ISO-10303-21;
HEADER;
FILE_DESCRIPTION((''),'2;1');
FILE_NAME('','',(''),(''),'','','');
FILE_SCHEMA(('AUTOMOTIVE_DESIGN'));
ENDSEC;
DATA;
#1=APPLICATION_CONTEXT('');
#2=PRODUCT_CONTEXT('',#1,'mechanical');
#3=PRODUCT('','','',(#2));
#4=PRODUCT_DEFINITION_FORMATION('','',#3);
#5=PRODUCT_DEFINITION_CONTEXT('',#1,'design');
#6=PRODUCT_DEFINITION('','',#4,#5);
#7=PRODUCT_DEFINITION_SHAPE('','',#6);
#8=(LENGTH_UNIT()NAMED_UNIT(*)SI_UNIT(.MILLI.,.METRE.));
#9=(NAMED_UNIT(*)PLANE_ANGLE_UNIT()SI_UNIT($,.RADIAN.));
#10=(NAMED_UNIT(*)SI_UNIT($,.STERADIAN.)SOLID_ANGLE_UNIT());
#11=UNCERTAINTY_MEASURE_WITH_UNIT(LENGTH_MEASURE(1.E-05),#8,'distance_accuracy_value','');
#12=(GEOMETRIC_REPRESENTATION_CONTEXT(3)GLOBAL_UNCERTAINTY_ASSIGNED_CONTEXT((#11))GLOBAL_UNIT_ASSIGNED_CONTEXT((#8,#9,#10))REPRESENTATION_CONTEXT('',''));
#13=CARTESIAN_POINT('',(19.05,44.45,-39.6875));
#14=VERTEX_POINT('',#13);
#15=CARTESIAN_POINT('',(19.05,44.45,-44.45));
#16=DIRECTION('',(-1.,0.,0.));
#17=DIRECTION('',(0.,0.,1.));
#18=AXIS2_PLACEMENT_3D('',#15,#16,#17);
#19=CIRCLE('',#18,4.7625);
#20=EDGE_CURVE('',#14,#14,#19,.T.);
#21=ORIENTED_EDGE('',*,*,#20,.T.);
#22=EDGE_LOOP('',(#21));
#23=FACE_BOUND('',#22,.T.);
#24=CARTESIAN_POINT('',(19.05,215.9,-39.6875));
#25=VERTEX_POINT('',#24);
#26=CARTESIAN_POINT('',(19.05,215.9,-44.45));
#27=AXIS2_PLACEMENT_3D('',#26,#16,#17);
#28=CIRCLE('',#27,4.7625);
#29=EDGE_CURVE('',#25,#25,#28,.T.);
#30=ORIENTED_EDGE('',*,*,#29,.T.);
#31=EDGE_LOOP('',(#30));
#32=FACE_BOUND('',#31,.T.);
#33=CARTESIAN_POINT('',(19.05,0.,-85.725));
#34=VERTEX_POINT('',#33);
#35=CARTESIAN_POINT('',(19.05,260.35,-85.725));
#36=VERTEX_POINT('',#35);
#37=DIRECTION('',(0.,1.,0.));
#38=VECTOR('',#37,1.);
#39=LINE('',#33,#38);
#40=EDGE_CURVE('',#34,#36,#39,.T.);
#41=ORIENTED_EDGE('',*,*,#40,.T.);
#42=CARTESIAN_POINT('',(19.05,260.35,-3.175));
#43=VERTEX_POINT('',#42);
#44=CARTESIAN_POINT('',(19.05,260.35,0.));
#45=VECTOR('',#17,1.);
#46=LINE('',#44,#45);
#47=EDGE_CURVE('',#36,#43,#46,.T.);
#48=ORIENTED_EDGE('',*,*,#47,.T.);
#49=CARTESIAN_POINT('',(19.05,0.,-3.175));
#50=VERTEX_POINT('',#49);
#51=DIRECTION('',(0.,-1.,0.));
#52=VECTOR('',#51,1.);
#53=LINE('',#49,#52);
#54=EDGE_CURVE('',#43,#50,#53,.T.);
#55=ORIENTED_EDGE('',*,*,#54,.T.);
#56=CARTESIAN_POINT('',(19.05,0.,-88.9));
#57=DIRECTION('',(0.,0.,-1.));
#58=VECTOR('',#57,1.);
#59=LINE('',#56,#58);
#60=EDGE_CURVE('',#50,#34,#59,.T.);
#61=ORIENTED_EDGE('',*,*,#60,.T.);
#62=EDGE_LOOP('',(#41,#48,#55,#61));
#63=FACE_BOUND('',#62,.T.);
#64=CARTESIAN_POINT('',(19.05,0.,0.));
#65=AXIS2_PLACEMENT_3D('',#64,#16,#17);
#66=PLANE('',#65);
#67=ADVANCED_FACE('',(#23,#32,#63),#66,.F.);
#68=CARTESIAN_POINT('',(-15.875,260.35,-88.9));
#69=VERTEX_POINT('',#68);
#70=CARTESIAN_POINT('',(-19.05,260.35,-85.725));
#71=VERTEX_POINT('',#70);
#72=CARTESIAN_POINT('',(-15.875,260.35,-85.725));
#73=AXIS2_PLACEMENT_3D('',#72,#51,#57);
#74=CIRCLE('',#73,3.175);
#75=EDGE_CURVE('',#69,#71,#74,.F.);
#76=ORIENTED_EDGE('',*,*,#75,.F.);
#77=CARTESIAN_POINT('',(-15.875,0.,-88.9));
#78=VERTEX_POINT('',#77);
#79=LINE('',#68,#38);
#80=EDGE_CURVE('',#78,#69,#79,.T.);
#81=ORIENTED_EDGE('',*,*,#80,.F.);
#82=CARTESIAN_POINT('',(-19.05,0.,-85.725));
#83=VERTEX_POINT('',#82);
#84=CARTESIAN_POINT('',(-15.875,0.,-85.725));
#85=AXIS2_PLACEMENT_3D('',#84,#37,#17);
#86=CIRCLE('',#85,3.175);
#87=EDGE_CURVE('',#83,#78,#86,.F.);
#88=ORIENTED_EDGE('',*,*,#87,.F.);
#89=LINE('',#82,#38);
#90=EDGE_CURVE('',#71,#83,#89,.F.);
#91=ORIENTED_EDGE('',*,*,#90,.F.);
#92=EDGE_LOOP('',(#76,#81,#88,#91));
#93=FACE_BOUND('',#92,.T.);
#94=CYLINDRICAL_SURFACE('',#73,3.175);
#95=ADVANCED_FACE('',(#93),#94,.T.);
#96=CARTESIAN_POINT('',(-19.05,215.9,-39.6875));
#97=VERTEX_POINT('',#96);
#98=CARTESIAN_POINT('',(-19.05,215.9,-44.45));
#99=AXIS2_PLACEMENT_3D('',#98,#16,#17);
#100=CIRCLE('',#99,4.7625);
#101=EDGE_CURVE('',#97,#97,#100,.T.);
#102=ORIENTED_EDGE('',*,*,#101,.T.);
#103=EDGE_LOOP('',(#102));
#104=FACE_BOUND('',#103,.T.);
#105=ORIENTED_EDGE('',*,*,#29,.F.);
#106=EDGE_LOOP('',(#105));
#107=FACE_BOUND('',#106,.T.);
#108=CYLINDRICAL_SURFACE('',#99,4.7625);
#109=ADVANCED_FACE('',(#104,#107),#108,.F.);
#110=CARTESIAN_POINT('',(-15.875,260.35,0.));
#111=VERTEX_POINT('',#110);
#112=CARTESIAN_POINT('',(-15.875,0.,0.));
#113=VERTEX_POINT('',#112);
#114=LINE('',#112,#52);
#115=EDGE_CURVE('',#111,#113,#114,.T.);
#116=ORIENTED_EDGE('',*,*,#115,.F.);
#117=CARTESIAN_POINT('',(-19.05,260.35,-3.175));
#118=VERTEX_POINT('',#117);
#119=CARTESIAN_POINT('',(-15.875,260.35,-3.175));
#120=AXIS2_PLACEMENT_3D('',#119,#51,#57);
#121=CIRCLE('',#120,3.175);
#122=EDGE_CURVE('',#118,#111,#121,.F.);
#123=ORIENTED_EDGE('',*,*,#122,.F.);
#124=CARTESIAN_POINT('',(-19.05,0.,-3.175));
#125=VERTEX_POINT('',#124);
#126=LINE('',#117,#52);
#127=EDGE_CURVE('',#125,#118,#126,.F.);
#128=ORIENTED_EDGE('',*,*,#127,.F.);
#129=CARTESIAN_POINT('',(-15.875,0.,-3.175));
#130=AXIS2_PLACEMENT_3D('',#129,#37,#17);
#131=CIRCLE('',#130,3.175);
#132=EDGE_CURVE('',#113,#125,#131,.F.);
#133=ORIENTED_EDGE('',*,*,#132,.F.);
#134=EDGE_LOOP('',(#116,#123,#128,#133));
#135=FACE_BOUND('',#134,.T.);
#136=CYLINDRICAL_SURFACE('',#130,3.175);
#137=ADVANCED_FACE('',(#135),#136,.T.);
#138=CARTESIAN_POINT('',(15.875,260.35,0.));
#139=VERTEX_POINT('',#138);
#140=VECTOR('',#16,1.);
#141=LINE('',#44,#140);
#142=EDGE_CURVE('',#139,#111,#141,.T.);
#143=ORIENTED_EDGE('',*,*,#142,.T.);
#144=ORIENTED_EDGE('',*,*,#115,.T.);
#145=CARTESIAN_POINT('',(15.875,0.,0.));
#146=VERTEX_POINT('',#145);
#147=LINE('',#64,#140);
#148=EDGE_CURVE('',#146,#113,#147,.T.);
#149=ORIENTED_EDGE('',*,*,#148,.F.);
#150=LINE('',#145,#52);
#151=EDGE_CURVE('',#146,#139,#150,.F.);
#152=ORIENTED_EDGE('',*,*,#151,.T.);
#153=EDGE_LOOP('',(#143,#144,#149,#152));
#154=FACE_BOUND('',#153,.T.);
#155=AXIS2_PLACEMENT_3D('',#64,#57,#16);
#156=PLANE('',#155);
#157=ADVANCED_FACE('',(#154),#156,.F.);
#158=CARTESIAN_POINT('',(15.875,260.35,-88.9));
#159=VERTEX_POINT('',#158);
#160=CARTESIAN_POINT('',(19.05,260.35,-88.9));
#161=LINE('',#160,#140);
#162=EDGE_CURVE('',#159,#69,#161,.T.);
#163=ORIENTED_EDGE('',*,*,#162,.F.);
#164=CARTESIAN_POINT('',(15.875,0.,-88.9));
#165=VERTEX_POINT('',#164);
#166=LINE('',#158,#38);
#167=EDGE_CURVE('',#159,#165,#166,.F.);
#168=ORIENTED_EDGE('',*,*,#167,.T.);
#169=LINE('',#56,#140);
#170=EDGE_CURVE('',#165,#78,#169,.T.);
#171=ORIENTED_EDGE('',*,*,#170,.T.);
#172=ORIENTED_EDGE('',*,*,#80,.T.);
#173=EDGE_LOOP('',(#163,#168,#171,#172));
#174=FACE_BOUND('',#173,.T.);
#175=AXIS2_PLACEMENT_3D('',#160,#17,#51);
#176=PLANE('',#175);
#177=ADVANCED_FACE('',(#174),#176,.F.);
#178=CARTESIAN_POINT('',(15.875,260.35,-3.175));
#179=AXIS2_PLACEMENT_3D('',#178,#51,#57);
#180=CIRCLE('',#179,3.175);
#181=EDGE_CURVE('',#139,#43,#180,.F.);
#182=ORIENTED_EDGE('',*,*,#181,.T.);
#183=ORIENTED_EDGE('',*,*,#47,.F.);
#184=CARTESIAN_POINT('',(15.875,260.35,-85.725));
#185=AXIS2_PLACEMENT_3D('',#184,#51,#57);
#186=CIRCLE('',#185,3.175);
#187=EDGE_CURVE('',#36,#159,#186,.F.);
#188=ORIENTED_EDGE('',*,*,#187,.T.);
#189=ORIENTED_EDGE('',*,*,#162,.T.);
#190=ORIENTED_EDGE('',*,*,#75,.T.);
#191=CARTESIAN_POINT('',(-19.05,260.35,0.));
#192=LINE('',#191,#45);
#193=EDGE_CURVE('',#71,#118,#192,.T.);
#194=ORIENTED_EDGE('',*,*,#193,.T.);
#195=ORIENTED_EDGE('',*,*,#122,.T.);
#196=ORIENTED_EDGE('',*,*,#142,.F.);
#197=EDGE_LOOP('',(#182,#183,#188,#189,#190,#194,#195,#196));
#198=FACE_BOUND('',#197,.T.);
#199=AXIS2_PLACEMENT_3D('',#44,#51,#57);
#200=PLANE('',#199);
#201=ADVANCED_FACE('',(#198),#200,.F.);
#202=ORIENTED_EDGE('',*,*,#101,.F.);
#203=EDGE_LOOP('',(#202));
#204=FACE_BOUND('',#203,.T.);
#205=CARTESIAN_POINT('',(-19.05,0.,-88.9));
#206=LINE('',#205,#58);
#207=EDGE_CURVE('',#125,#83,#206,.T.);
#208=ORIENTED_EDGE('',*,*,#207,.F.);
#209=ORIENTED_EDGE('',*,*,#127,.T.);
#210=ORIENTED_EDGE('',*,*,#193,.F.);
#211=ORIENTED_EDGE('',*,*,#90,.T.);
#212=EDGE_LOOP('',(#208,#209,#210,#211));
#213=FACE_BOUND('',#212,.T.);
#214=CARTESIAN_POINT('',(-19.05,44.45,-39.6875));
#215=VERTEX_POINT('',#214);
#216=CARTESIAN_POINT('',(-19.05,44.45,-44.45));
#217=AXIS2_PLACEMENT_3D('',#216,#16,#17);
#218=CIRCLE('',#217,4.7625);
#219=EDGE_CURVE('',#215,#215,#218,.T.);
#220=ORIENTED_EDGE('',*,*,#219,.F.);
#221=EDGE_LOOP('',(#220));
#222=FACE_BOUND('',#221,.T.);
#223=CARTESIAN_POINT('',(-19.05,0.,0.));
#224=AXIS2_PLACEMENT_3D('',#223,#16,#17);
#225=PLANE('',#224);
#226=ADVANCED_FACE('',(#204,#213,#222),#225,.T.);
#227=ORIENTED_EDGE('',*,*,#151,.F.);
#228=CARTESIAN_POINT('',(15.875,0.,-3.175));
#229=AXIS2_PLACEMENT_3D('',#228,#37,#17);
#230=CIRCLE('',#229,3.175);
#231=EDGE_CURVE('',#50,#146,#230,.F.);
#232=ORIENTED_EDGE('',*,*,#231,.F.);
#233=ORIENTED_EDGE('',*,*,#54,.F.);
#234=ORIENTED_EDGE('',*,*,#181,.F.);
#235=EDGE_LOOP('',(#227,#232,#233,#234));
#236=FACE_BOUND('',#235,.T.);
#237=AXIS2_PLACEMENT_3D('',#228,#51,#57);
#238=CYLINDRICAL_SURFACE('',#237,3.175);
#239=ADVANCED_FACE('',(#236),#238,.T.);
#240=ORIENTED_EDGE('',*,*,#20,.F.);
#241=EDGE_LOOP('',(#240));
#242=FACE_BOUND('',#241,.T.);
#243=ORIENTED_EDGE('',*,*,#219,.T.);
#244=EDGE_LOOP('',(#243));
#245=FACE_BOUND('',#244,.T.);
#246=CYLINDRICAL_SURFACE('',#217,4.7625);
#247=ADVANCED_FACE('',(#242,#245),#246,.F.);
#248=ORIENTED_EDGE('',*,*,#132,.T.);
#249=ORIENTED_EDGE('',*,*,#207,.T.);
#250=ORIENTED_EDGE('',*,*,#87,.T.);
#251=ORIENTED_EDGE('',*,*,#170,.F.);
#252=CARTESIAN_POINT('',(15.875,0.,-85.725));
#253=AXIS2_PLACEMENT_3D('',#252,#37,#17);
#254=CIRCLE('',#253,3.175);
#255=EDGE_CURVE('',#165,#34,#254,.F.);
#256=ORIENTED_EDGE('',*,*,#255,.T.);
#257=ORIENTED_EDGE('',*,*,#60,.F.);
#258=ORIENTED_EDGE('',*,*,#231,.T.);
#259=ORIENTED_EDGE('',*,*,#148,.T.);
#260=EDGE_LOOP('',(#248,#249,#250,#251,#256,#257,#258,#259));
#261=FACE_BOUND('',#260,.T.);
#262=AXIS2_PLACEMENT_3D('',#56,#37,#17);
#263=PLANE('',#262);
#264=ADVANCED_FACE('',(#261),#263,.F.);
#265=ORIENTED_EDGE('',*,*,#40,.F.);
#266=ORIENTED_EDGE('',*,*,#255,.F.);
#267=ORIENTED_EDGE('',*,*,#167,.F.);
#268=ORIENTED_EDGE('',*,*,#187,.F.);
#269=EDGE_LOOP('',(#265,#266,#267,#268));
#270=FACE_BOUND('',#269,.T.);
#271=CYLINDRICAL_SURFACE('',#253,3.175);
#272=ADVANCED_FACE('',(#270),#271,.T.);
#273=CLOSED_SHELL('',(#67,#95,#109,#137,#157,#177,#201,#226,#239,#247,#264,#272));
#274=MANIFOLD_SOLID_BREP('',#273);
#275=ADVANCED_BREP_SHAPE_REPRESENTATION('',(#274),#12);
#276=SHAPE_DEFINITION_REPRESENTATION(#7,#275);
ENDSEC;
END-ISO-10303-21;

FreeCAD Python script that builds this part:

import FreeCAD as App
import Part
import Sketcher
from FreeCAD import Vector
Q = App.Units.Quantity


def edges_at(feature, points):
    """Names of the edges that pass closest to the given points."""
    edges = feature.Shape.Edges
    near = lambda p: min(range(len(edges)), key=lambda i: edges[i].distToShape(Part.Vertex(*p))[0])
    return sorted({f"Edge{near(p) + 1}" for p in points})


def add_polygon(sketch, points):
    """Adds a closed chain of lines whose ends are joined by coincident constraints."""
    first, n = sketch.GeometryCount, len(points)
    for a, b in zip(points, points[1:] + points[:1]):
        sketch.addGeometry(Part.LineSegment(App.Vector(*a, 0), App.Vector(*b, 0)), False)
    for i in range(n):
        sketch.addConstraint(Sketcher.Constraint("Coincident", first + i, 2, first + (i + 1) % n, 1))

doc = App.newDocument("Part")
body = doc.addObject("PartDesign::Body", "Body")

# Sketch on YZ plane
sketch1 = doc.addObject("Sketcher::SketchObject", "Sketch")
body.addObject(sketch1)
sketch1.AttachmentSupport = (doc.YZ_Plane, [""])
sketch1.MapMode = "FlatFace"
add_polygon(sketch1, [(260, 0), (0, 0), (0, -89), (260, -89)])  # lines 0-3
sketch1.addConstraint([
    Sketcher.Constraint("Horizontal", 0),
    Sketcher.Constraint("Vertical", 1),
    Sketcher.Constraint("Horizontal", 2),
    Sketcher.Constraint("Vertical", 3),
    Sketcher.Constraint("Coincident", 0, 2, -1, 1),
    Sketcher.Constraint("DistanceY", 1, 2, 1, 1, Q("3.5 in")),
    Sketcher.Constraint("DistanceX", 0, 2, 0, 1, Q("10.25 in")),
])
pad1 = doc.addObject("PartDesign::Pad", "Pad")
body.addObject(pad1)
pad1.Profile = sketch1
pad1.Length = Q("1.5 in")
pad1.Midplane = True
doc.recompute()

fillet = doc.addObject("PartDesign::Fillet", "Fillet")
body.addObject(fillet)
fillet.Base = (pad1, edges_at(pad1, [
    (19.05, 130.175, 0),
    (-19.05, 130.175, 0),
    (-19.05, 130.175, -88.9),
    (19.05, 130.175, -88.9),
]))
fillet.Radius = Q("0.125 in")

# Sketch on YZ plane
sketch2 = doc.addObject("Sketcher::SketchObject", "Sketch001")
body.addObject(sketch2)
sketch2.AttachmentSupport = (doc.YZ_Plane, [""])
sketch2.MapMode = "FlatFace"
sketch2.AttachmentOffset = App.Placement(Vector(0, 0, -0.75 * 25.4), App.Rotation())
sketch2.addGeometry([
    Part.Circle(Vector(215.9, -44.5, 0), Vector(0, 0, 1), 4.8),
    Part.Circle(Vector(44.5, -44.5, 0), Vector(0, 0, 1), 4.8),
], False)
sketch2.addConstraint([
    Sketcher.Constraint("Equal", 0, 1),
    Sketcher.Constraint("Horizontal", 0, 3, 1, 3),
    Sketcher.Constraint("Diameter", 0, Q("0.375 in")),
    Sketcher.Constraint("DistanceX", -1, 1, 0, 3, Q("8.5 in")),
    Sketcher.Constraint("DistanceY", 0, 3, -1, 1, Q("1.75 in")),
    Sketcher.Constraint("DistanceX", -1, 1, 1, 3, Q("1.75 in")),
])
doc.recompute()
hole = doc.addObject("PartDesign::Hole", "Hole")
body.addObject(hole)
hole.Profile = sketch2
hole.ThreadType = "None"
hole.Diameter = Q("0.375 in")
hole.DepthType = "ThroughAll"
hole.Reversed = True

doc.recompute()
